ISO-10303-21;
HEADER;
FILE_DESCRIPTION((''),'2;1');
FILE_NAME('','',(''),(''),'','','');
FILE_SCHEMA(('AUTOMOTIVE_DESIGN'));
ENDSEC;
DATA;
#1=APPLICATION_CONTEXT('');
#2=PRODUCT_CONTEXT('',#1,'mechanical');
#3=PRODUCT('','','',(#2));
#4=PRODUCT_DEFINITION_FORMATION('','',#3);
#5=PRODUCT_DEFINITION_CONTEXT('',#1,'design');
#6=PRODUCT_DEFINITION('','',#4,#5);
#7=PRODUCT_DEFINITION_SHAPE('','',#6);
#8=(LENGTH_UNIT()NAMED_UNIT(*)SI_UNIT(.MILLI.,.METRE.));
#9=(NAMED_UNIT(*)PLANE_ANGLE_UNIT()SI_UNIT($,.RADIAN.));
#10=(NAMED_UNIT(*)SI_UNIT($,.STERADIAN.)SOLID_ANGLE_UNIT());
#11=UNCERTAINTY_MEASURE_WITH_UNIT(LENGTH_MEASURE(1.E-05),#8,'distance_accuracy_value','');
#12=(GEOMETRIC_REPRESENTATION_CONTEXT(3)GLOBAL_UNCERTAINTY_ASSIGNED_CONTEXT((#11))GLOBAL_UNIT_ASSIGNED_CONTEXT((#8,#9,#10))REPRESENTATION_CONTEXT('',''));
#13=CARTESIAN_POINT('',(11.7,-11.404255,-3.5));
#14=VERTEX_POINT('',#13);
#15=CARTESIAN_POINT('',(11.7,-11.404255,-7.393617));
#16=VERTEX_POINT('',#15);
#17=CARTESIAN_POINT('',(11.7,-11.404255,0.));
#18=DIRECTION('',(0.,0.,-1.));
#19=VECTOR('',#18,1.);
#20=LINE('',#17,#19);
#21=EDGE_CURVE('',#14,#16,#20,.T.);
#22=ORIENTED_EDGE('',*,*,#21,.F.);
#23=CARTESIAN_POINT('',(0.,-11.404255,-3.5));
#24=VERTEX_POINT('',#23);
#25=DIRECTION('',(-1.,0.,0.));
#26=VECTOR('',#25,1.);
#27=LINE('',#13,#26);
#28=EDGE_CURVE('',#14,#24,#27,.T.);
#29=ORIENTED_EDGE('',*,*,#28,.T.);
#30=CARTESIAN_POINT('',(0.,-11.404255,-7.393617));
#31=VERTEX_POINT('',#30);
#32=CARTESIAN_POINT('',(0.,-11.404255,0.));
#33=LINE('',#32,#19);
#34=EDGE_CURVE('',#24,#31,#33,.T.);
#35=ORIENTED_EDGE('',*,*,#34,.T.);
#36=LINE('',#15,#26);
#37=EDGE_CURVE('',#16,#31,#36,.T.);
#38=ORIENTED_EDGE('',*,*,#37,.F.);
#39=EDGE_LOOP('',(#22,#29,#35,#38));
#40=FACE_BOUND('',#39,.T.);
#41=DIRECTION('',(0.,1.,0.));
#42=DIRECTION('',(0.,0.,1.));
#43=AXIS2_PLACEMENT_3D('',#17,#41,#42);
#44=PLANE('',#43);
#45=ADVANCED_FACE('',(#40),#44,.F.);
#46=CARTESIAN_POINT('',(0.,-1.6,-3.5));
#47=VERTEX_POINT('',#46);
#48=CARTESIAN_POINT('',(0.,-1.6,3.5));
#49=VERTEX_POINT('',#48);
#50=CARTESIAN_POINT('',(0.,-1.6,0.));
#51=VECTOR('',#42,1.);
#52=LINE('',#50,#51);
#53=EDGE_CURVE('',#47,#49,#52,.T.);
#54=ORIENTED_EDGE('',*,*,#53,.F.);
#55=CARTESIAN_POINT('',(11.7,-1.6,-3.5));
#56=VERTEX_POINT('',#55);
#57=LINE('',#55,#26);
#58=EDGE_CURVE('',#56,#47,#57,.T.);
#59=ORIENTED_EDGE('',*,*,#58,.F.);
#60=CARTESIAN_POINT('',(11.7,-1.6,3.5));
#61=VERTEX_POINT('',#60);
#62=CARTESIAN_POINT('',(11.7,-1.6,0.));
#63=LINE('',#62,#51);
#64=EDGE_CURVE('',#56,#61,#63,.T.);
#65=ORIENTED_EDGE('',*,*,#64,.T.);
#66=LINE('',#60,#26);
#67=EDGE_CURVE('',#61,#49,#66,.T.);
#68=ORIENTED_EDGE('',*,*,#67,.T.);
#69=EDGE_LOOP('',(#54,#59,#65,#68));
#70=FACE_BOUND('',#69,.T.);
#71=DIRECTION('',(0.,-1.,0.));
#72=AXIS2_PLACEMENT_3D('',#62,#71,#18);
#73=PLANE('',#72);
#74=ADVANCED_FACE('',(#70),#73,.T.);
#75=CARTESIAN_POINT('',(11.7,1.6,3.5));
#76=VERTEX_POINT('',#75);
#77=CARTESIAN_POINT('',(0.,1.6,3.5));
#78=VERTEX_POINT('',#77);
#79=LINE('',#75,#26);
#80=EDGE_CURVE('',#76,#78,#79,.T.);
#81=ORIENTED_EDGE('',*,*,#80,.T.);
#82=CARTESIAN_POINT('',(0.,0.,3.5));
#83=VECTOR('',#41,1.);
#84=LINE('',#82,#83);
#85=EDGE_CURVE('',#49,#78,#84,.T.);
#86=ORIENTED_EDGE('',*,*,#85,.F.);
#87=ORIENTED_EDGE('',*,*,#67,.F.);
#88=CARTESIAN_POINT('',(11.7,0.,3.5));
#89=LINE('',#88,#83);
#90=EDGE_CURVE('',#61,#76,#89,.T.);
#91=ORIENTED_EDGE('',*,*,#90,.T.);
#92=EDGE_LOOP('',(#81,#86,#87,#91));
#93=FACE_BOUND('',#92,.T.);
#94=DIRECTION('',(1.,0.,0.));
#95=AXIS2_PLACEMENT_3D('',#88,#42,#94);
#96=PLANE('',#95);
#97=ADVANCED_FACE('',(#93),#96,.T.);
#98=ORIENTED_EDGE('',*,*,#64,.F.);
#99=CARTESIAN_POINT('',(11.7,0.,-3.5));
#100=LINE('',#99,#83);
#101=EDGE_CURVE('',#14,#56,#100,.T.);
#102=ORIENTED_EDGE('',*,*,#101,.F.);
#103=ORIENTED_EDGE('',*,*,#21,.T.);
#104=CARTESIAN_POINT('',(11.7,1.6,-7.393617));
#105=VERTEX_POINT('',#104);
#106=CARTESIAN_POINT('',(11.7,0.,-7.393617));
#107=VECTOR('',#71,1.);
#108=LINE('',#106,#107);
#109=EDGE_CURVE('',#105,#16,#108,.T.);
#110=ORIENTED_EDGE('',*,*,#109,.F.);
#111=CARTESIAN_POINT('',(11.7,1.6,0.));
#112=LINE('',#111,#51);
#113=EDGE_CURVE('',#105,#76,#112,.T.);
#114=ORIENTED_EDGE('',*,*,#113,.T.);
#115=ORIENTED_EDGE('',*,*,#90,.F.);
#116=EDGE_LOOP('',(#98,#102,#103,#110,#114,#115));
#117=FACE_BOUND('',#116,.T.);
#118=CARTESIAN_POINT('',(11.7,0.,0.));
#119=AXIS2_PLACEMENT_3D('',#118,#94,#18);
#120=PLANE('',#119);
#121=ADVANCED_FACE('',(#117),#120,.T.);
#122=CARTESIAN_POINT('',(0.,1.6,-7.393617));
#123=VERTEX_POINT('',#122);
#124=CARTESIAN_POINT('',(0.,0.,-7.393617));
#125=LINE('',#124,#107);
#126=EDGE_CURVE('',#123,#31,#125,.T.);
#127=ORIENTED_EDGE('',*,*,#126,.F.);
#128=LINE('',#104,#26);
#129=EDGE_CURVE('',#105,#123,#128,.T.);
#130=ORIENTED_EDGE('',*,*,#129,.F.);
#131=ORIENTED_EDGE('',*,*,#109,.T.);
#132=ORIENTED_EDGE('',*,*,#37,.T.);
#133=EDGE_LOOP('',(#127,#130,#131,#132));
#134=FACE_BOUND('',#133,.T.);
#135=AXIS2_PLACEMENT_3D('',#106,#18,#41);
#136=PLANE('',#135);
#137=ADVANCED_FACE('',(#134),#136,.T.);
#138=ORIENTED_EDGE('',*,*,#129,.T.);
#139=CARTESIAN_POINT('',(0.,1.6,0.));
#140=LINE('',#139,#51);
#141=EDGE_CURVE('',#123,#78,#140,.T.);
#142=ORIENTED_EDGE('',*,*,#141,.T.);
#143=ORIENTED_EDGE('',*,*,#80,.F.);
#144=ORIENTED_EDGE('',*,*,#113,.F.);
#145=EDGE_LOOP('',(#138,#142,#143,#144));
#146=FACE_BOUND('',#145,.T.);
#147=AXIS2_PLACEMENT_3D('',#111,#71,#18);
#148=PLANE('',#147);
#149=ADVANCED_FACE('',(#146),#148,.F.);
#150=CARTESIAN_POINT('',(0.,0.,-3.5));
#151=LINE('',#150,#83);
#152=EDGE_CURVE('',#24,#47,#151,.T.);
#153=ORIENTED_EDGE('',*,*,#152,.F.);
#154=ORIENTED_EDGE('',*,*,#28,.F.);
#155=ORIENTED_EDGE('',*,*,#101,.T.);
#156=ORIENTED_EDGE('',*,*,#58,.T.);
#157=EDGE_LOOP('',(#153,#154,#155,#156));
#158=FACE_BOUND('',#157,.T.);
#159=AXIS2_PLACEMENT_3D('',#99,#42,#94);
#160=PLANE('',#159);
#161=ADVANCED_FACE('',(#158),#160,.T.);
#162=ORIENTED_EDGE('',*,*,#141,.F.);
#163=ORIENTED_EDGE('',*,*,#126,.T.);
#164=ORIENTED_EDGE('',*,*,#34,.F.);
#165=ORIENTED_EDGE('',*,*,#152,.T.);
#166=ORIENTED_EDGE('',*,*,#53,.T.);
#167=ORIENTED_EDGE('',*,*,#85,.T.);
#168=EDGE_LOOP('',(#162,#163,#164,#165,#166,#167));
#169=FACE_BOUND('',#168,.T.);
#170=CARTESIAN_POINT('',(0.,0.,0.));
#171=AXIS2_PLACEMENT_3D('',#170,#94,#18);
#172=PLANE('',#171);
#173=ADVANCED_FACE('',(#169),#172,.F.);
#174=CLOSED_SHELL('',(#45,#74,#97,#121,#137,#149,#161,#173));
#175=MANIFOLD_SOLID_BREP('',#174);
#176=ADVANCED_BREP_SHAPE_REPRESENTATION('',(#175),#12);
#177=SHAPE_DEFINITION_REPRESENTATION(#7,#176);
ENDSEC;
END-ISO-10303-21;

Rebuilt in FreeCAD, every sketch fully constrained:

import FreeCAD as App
import Part
import Sketcher
from FreeCAD import Vector
Q = App.Units.Quantity


def add_polygon(sketch, points):
    """Adds a closed chain of lines whose ends are joined by coincident constraints."""
    first, n = sketch.GeometryCount, len(points)
    for a, b in zip(points, points[1:] + points[:1]):
        sketch.addGeometry(Part.LineSegment(App.Vector(*a, 0), App.Vector(*b, 0)), False)
    for i in range(n):
        sketch.addConstraint(Sketcher.Constraint("Coincident", first + i, 2, first + (i + 1) % n, 1))

doc = App.newDocument("Part")
body = doc.addObject("PartDesign::Body", "Body")

# Sketch on YZ plane
sketch1 = body.newObject("Sketcher::SketchObject", "Sketch")
sketch1.AttachmentSupport = (doc.getObject("YZ_Plane"), [""])
sketch1.MapMode = "FlatFace"
add_polygon(sketch1, [(1.6, 3.5), (-1.6, 3.5), (-1.6, -3.5), (-11.4, -3.5), (-11.4, -7.4), (1.6, -7.4)])  # lines 0-5
sketch1.addConstraint([
    Sketcher.Constraint("Horizontal", 0),
    Sketcher.Constraint("Vertical", 1),
    Sketcher.Constraint("Horizontal", 2),
    Sketcher.Constraint("Vertical", 3),
    Sketcher.Constraint("Horizontal", 4),
    Sketcher.Constraint("Vertical", 5),
    Sketcher.Constraint("Symmetric", 1, 2, 5, 2, -1, 1),
    Sketcher.Constraint("DistanceY", 1, 2, 1, 1, Q("7 mm")),
    Sketcher.Constraint("DistanceX", 0, 2, 0, 1, Q("3.2 mm")),
    Sketcher.Constraint("DistanceX", 2, 2, 2, 1, Q("9.804255 mm")),
    Sketcher.Constraint("DistanceY", 3, 2, 3, 1, Q("3.893617 mm")),
])
pad1 = body.newObject("PartDesign::Pad", "Pad")
pad1.Profile = sketch1
pad1.Length = 11.7

doc.recompute()
